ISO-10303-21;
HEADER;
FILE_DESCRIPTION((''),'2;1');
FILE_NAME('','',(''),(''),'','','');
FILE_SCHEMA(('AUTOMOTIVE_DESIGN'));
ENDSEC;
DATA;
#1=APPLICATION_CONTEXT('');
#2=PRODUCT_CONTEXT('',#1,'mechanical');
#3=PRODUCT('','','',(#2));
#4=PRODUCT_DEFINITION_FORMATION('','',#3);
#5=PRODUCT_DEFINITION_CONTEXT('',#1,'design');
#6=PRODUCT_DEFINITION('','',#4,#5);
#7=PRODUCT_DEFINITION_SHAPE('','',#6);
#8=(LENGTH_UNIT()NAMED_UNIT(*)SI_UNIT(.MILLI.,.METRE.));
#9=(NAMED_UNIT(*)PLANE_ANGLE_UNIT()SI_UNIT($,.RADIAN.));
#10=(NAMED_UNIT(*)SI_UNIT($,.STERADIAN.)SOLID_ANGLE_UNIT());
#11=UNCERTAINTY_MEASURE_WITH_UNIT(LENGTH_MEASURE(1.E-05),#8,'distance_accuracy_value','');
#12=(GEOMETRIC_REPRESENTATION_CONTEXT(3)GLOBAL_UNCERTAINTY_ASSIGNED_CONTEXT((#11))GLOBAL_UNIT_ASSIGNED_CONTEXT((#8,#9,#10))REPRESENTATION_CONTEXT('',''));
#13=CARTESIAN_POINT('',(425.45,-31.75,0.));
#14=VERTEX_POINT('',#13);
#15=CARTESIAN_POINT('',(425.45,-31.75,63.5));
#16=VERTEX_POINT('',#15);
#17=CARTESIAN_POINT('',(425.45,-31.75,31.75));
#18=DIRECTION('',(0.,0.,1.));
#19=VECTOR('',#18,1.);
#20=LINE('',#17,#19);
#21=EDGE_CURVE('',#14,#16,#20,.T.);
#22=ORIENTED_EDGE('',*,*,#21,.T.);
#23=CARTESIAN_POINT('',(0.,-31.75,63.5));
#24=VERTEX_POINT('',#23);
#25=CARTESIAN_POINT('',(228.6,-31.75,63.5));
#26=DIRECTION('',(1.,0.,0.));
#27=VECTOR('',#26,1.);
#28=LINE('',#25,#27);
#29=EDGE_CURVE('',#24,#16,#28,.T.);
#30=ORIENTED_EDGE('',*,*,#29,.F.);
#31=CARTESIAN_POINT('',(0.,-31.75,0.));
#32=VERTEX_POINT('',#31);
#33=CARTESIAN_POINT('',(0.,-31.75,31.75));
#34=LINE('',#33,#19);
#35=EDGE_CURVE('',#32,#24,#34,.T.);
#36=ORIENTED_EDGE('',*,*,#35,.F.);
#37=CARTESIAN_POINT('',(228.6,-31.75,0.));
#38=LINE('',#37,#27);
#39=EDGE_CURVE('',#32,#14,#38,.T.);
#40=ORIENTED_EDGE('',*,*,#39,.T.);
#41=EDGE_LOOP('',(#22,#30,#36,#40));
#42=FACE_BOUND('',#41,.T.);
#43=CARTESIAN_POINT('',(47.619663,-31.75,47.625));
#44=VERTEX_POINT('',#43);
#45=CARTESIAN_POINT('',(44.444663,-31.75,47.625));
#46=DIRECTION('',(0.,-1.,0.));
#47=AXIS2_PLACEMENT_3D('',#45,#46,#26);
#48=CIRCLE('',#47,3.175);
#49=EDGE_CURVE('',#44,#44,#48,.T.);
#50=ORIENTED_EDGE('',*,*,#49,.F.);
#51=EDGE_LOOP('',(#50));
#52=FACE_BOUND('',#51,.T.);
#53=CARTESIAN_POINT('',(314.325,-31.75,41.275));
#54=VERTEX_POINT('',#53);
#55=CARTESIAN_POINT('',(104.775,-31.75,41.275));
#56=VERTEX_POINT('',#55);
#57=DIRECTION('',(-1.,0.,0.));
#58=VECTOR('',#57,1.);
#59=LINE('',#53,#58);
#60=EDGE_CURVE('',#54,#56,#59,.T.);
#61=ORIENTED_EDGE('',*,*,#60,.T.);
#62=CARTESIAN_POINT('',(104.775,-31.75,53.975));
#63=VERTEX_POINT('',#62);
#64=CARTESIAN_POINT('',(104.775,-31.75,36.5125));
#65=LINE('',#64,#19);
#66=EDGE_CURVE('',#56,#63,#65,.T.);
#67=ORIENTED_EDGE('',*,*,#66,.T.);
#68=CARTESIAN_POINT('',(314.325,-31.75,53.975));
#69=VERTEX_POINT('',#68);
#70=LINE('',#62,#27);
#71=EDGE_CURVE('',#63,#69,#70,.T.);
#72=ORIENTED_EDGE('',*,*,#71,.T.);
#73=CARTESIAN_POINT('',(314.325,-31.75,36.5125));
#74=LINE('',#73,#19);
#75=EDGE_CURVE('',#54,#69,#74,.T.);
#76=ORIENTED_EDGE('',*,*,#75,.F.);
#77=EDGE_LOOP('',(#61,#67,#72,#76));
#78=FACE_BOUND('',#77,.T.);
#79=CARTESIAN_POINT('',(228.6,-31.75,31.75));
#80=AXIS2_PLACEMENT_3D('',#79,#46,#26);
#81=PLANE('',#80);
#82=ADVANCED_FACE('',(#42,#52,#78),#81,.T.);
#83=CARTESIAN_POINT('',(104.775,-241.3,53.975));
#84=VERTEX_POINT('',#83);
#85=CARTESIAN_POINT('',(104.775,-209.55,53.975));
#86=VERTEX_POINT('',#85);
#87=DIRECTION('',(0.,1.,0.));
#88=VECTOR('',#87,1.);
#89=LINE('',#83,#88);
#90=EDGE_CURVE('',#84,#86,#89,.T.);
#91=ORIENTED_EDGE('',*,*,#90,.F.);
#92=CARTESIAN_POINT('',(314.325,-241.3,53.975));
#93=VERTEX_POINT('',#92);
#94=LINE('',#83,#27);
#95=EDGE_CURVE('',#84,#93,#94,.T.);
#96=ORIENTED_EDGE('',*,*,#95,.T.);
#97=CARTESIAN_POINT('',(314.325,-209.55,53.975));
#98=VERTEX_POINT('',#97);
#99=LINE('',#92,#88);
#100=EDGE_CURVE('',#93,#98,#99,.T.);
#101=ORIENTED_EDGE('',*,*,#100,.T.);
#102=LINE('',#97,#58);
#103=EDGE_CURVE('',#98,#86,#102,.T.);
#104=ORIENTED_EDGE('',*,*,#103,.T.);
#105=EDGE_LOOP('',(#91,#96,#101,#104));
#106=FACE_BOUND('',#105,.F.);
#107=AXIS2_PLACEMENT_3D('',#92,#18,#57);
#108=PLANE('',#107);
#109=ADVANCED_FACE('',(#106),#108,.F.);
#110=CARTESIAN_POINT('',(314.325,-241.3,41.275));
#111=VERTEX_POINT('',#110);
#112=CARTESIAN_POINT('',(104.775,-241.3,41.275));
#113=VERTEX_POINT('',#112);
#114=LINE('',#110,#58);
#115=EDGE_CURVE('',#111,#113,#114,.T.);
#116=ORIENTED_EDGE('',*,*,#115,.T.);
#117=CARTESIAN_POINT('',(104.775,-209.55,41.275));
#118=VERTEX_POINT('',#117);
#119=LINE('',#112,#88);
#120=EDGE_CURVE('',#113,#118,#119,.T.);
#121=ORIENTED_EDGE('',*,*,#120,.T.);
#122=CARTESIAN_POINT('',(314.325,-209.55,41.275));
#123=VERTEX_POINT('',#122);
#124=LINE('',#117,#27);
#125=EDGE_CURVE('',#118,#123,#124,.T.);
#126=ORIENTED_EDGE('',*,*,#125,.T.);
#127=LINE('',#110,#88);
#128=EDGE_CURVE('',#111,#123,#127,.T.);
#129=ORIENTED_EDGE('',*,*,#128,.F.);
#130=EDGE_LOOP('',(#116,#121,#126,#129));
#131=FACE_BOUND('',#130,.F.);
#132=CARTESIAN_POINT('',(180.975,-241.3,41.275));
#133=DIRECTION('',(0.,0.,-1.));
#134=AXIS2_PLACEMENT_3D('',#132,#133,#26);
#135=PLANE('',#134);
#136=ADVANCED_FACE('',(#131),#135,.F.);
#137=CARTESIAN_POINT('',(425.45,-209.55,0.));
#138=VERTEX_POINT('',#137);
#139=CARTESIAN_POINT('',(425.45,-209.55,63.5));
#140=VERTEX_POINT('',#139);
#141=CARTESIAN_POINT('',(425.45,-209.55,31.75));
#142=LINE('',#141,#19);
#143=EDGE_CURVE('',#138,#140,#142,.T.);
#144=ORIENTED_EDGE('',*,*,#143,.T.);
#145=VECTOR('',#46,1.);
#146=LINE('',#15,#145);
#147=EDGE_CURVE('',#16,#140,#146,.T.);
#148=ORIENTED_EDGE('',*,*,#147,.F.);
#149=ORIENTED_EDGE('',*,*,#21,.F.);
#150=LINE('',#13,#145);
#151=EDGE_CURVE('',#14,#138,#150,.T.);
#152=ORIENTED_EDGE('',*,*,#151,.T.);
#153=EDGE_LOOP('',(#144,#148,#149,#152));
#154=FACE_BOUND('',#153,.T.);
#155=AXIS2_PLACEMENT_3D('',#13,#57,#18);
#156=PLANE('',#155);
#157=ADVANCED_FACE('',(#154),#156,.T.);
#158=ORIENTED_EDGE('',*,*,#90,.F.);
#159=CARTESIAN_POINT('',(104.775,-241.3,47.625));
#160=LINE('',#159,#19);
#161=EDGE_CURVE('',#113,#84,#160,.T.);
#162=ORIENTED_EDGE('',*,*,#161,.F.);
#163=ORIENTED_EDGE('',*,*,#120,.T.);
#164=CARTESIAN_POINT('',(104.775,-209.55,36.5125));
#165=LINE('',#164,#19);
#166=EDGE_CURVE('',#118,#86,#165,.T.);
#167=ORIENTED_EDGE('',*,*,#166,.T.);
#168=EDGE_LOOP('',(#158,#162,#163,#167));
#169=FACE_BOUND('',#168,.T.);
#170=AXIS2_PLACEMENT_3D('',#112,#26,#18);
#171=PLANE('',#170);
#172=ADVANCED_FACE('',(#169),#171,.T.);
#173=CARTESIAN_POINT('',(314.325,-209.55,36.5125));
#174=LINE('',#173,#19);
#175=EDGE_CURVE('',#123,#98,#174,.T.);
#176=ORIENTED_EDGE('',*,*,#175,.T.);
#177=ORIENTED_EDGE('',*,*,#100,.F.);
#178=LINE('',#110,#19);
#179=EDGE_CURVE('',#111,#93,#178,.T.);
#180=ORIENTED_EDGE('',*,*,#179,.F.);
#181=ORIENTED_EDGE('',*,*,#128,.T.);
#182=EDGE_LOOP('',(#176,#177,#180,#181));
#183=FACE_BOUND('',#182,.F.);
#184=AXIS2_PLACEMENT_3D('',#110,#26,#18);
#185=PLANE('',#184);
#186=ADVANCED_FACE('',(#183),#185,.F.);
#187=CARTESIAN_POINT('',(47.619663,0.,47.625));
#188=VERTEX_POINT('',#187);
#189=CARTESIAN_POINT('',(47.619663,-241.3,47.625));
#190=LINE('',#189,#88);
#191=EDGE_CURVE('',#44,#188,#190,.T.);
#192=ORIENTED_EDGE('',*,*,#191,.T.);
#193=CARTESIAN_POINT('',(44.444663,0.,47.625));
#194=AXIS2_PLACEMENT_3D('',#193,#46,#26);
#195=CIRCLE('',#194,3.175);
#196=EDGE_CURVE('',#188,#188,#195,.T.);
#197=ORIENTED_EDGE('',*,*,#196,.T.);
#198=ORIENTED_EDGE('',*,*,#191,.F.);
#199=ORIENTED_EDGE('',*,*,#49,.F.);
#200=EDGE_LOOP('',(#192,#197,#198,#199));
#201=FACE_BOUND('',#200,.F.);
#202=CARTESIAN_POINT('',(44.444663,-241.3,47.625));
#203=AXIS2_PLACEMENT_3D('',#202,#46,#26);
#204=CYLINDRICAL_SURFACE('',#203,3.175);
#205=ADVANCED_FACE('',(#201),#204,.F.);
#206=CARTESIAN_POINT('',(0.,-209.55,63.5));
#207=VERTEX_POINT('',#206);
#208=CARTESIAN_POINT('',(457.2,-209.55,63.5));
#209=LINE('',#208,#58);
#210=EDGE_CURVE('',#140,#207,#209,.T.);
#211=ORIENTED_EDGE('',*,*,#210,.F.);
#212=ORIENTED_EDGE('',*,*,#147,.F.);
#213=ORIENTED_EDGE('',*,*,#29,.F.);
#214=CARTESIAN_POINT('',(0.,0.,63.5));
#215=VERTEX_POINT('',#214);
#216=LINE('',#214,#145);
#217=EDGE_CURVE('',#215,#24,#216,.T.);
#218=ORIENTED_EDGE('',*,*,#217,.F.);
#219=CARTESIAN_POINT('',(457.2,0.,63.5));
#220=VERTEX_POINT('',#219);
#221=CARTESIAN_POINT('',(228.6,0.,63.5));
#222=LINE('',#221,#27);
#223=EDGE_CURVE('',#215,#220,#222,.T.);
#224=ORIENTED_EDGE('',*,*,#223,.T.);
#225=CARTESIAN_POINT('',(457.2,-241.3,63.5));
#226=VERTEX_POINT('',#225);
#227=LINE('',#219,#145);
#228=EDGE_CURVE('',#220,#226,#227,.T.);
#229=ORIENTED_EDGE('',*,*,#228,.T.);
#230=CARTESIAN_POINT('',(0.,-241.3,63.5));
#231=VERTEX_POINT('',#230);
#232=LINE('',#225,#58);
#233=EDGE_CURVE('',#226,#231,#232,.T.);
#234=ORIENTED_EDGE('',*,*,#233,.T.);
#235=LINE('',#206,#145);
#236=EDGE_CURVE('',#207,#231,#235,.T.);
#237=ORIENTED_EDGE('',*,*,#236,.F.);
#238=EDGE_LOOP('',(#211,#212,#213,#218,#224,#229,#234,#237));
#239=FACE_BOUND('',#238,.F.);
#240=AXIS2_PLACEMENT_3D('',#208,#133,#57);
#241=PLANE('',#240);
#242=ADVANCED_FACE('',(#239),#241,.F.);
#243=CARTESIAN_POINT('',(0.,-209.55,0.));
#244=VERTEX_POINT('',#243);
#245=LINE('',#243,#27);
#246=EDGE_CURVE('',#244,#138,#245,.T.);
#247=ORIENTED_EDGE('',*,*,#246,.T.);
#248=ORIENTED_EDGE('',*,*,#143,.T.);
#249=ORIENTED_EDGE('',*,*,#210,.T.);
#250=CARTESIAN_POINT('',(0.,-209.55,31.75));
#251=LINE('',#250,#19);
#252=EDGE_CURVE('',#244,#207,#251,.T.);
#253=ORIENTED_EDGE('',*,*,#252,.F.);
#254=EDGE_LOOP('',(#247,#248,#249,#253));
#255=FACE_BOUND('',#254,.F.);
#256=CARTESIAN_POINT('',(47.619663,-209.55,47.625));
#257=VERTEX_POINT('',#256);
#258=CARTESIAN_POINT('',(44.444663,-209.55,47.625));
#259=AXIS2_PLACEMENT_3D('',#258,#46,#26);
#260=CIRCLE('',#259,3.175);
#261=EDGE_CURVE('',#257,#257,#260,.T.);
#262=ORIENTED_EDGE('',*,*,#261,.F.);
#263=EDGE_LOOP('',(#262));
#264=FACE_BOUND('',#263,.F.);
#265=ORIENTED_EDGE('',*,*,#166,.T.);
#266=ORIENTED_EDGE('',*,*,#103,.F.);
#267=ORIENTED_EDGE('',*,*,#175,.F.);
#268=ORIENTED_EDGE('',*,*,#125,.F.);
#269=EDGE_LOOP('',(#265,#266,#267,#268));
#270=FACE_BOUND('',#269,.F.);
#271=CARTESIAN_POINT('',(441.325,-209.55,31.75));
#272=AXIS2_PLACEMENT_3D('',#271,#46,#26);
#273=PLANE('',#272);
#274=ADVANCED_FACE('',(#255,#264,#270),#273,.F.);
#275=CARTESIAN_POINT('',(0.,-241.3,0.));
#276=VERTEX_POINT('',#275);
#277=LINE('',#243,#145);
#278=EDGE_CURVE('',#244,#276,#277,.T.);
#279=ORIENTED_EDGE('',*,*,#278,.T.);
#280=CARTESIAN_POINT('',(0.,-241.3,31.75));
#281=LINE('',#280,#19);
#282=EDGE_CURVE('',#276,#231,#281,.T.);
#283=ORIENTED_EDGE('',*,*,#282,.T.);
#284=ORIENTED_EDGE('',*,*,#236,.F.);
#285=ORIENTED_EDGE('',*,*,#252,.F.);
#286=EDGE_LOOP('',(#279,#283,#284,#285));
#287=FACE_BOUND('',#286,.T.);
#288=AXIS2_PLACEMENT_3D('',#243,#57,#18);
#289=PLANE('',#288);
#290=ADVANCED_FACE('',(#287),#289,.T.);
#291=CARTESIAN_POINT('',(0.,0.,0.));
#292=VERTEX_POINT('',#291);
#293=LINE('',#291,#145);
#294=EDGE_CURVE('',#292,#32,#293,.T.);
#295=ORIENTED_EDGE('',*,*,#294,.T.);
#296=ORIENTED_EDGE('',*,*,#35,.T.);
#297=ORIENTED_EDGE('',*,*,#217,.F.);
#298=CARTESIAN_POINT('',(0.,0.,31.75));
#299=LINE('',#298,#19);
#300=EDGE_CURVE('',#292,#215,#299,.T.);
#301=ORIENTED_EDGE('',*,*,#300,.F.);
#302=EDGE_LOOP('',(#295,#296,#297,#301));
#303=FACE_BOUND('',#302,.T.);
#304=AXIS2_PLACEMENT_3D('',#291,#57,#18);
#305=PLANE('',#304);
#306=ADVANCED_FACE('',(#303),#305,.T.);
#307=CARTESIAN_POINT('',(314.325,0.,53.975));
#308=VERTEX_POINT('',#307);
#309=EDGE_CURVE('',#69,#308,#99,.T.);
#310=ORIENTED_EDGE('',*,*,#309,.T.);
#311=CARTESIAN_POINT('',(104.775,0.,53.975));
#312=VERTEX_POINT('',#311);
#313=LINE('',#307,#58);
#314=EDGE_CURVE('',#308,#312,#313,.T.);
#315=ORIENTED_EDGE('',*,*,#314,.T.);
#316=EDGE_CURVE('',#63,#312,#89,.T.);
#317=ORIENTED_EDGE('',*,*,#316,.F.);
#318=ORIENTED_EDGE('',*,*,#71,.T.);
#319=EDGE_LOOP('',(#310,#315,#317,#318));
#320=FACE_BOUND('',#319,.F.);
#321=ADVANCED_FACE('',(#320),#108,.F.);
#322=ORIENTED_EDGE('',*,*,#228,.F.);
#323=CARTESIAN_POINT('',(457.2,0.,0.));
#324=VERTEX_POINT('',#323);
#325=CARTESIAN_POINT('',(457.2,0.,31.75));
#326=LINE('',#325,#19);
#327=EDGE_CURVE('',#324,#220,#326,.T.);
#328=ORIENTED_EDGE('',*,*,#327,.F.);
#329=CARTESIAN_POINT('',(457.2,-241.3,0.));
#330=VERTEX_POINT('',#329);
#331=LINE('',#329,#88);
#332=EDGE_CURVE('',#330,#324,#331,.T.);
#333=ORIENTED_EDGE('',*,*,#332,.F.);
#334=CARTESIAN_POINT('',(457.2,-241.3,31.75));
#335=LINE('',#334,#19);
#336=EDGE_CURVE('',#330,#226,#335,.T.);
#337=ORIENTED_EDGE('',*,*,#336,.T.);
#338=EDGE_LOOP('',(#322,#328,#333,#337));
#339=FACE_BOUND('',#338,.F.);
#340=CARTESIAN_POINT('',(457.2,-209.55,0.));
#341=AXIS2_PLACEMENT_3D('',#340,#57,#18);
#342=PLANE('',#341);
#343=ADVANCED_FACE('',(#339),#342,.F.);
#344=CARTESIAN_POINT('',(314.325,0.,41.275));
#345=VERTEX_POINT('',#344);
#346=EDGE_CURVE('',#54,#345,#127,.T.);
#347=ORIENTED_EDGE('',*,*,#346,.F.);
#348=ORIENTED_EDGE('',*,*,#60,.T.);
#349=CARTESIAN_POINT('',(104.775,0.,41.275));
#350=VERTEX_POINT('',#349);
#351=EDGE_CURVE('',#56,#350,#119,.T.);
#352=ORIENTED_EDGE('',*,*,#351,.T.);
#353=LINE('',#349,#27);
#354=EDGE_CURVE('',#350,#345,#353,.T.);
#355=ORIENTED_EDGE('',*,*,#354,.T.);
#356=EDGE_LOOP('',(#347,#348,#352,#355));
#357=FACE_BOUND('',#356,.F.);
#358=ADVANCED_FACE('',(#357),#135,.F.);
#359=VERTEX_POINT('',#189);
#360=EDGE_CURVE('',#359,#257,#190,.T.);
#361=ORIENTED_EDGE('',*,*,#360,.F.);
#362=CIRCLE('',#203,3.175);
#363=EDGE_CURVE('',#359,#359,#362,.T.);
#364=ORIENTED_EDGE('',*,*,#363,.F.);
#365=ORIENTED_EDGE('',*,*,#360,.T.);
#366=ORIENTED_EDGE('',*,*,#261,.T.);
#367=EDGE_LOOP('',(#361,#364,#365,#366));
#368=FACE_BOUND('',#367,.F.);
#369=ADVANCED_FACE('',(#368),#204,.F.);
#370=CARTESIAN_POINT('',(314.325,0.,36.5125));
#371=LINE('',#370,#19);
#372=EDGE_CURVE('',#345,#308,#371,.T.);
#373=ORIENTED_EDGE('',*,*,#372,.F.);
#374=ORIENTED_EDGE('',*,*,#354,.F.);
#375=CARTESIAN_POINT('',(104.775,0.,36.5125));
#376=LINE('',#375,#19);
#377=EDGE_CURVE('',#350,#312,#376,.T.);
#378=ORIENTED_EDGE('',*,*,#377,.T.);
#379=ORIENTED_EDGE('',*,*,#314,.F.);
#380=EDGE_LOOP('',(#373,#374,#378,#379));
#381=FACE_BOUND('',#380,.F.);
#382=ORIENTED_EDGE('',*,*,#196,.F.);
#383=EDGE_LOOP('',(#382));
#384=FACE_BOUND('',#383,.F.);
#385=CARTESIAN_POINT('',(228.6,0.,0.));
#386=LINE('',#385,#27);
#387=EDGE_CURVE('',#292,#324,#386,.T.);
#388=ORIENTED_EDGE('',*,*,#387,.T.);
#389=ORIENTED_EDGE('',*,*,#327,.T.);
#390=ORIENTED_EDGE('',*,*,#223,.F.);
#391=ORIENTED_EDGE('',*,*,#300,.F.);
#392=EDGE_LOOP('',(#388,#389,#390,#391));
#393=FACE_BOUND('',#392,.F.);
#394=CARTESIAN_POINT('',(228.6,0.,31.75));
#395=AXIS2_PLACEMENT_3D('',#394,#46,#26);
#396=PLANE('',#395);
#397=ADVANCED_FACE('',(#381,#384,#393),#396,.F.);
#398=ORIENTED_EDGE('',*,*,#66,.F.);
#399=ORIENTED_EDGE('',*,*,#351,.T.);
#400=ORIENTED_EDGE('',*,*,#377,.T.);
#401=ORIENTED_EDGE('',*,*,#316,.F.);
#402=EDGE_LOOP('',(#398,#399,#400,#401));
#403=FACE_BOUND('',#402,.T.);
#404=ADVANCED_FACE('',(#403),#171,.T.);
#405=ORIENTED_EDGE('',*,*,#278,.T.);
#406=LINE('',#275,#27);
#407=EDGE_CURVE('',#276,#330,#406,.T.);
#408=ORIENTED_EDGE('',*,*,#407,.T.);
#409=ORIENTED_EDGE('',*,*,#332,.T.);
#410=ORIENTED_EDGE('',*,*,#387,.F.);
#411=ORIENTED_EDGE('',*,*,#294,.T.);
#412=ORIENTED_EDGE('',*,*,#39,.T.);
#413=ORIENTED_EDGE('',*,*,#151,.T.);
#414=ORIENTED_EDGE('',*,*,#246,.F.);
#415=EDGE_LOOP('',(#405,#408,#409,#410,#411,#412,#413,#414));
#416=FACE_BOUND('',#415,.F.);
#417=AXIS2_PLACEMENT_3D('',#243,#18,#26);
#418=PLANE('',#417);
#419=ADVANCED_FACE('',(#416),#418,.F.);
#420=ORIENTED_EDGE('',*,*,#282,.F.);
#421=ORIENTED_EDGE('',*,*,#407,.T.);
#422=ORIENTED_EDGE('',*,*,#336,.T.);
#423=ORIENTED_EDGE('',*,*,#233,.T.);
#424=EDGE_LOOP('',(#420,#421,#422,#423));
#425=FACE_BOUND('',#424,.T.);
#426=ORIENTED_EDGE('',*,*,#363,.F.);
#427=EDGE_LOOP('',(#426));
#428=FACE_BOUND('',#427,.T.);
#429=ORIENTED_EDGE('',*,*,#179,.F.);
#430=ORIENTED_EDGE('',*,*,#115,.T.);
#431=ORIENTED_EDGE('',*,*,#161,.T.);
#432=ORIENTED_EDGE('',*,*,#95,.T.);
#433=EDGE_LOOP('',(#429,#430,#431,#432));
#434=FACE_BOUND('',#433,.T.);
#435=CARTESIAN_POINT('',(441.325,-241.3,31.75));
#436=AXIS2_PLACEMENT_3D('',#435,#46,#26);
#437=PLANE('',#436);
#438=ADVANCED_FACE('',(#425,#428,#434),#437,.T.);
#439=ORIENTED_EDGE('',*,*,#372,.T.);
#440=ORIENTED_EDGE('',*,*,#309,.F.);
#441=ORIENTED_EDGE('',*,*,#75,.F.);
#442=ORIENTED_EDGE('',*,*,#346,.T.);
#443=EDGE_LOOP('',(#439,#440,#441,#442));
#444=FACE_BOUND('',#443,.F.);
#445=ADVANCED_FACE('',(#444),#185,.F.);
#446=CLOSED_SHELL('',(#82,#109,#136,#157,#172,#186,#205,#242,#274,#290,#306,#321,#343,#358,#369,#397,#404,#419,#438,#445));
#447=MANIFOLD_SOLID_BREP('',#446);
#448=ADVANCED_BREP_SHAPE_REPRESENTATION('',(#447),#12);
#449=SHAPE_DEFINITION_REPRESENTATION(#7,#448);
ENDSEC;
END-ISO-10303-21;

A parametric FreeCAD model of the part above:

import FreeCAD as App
import Part
import Sketcher

V = App.Vector
Q = App.Units.Quantity


def add_polygon(sketch, points):
    """Adds a closed chain of lines whose ends are joined by coincident constraints."""
    first, n = sketch.GeometryCount, len(points)
    for a, b in zip(points, points[1:] + points[:1]):
        sketch.addGeometry(Part.LineSegment(App.Vector(*a, 0), App.Vector(*b, 0)), False)
    for i in range(n):
        sketch.addConstraint(Sketcher.Constraint("Coincident", first + i, 2, first + (i + 1) % n, 1))

doc = App.newDocument("Part")
body = doc.addObject("PartDesign::Body", "Body")

# Sketch on XZ plane
sketch1 = body.newObject("Sketcher::SketchObject", "Sketch")
sketch1.AttachmentSupport = (doc.getObject("XZ_Plane"), [""])
sketch1.MapMode = "FlatFace"
add_polygon(sketch1, [(0, 63.5), (0, 0), (457.2, 0), (457.2, 63.5)])  # lines 0-3
sketch1.addConstraint(Sketcher.Constraint("Vertical", 0))
sketch1.addConstraint(Sketcher.Constraint("Horizontal", 1))
sketch1.addConstraint(Sketcher.Constraint("Vertical", 2))
sketch1.addConstraint(Sketcher.Constraint("Horizontal", 3))
sketch1.addConstraint(Sketcher.Constraint("Coincident", 0, 2, -1, 1))
sketch1.addConstraint(Sketcher.Constraint("DistanceX", 1, 1, 1, 2, Q("18 in")))
sketch1.addConstraint(Sketcher.Constraint("DistanceY", 0, 2, 0, 1, Q("2.5 in")))
pad1 = body.newObject("PartDesign::Pad", "Pad")
pad1.Profile = sketch1
pad1.Length = Q("1.25 in")

# Sketch on XZ plane
sketch2 = body.newObject("Sketcher::SketchObject", "Sketch001")
sketch2.AttachmentSupport = (doc.getObject("XZ_Plane"), [""])
sketch2.MapMode = "FlatFace"
sketch2.AttachmentOffset = App.Placement(V(0, 0, 1.25 * 25.4), App.Rotation())
add_polygon(sketch2, [(425.45, 63.5), (425.45, 0), (457.2, 0), (457.2, 63.5)])  # lines 0-3
sketch2.addConstraint(Sketcher.Constraint("Vertical", 0))
sketch2.addConstraint(Sketcher.Constraint("Horizontal", 1))
sketch2.addConstraint(Sketcher.Constraint("Vertical", 2))
sketch2.addConstraint(Sketcher.Constraint("Horizontal", 3))
sketch2.addConstraint(Sketcher.Constraint("PointOnObject", 0, 2, -1))
sketch2.addConstraint(Sketcher.Constraint("DistanceY", 0, 2, 0, 1, Q("2.5 in")))
sketch2.addConstraint(Sketcher.Constraint("DistanceX", -1, 1, 1, 2, Q("18 in")))
sketch2.addConstraint(Sketcher.Constraint("DistanceX", 1, 1, 1, 2, Q("1.25 in")))
pad2 = body.newObject("PartDesign::Pad", "Pad001")
pad2.Profile = sketch2
pad2.Length = Q("7 in")

# Sketch on XZ plane
sketch3 = body.newObject("Sketcher::SketchObject", "Sketch002")
sketch3.AttachmentSupport = (doc.getObject("XZ_Plane"), [""])
sketch3.MapMode = "FlatFace"
sketch3.AttachmentOffset = App.Placement(V(0, 0, 8.25 * 25.4), App.Rotation())
add_polygon(sketch3, [(457.2, 0), (457.2, 63.5), (0, 63.5), (0, 0)])  # lines 0-3
sketch3.addConstraint(Sketcher.Constraint("Vertical", 0))
sketch3.addConstraint(Sketcher.Constraint("Horizontal", 1))
sketch3.addConstraint(Sketcher.Constraint("Vertical", 2))
sketch3.addConstraint(Sketcher.Constraint("Horizontal", 3))
sketch3.addConstraint(Sketcher.Constraint("Coincident", 2, 2, -1, 1))
sketch3.addConstraint(Sketcher.Constraint("DistanceX", 1, 2, 1, 1, Q("18 in")))
sketch3.addConstraint(Sketcher.Constraint("DistanceY", 0, 1, 0, 2, Q("2.5 in")))
pad3 = body.newObject("PartDesign::Pad", "Pad002")
pad3.Profile = sketch3
pad3.Length = Q("1.25 in")

# Sketch on XZ plane
sketch4 = body.newObject("Sketcher::SketchObject", "Sketch003")
sketch4.AttachmentSupport = (doc.getObject("XZ_Plane"), [""])
sketch4.MapMode = "FlatFace"
sketch4.AttachmentOffset = App.Placement(V(0, 0, 9.5 * 25.4), App.Rotation())
add_polygon(sketch4, [(180.975, 41.275), (314.325, 41.275), (314.325, 53.975), (180.975, 53.975)])  # lines 0-3
sketch4.addConstraint(Sketcher.Constraint("Horizontal", 0))
sketch4.addConstraint(Sketcher.Constraint("Vertical", 1))
sketch4.addConstraint(Sketcher.Constraint("Horizontal", 2))
sketch4.addConstraint(Sketcher.Constraint("Vertical", 3))
sketch4.addConstraint(Sketcher.Constraint("DistanceY", 1, 1, 1, 2, Q("0.5 in")))
sketch4.addConstraint(Sketcher.Constraint("DistanceX", 0, 1, 0, 2, Q("5.25 in")))
sketch4.addConstraint(Sketcher.Constraint("DistanceX", -1, 1, 0, 2, Q("12.375 in")))
sketch4.addConstraint(Sketcher.Constraint("DistanceY", -1, 1, 0, 2, Q("1.625 in")))
pocket1 = body.newObject("PartDesign::Pocket", "Pocket")
pocket1.Profile = sketch4
pocket1.Length = Q("10 in")

# Sketch on XZ plane
sketch5 = body.newObject("Sketcher::SketchObject", "Sketch004")
sketch5.AttachmentSupport = (doc.getObject("XZ_Plane"), [""])
sketch5.MapMode = "FlatFace"
sketch5.AttachmentOffset = App.Placement(V(0, 0, 9.5 * 25.4), App.Rotation())
sketch5.addGeometry(Part.Circle(V(44.444663, 47.625, 0), V(0, 0, 1), 3.175), False)
sketch5.addConstraint(Sketcher.Constraint("Diameter", 0, Q("0.25 in")))
sketch5.addConstraint(Sketcher.Constraint("DistanceY", -1, 1, 0, 3, Q("1.875 in")))
sketch5.addConstraint(Sketcher.Constraint("DistanceX", -1, 1, 0, 3, 44.444663))
pocket2 = body.newObject("PartDesign::Pocket", "Pocket001")
pocket2.Profile = sketch5
pocket2.Length = Q("20 in")

# Sketch on XZ plane
sketch6 = body.newObject("Sketcher::SketchObject", "Sketch005")
sketch6.AttachmentSupport = (doc.getObject("XZ_Plane"), [""])
sketch6.MapMode = "FlatFace"
sketch6.AttachmentOffset = App.Placement(V(0, 0, 9.5 * 25.4), App.Rotation())
add_polygon(sketch6, [(104.775, 53.975), (104.775, 41.275), (180.975, 41.275), (180.975, 53.975)])  # lines 0-3
sketch6.addConstraint(Sketcher.Constraint("Vertical", 0))
sketch6.addConstraint(Sketcher.Constraint("Horizontal", 1))
sketch6.addConstraint(Sketcher.Constraint("Vertical", 2))
sketch6.addConstraint(Sketcher.Constraint("Horizontal", 3))
sketch6.addConstraint(Sketcher.Constraint("DistanceX", 1, 1, 1, 2, Q("3 in")))
sketch6.addConstraint(Sketcher.Constraint("DistanceY", 0, 2, 0, 1, Q("0.5 in")))
sketch6.addConstraint(Sketcher.Constraint("DistanceX", -1, 1, 0, 2, Q("4.125 in")))
sketch6.addConstraint(Sketcher.Constraint("DistanceY", -1, 1, 0, 2, Q("1.625 in")))
pocket3 = body.newObject("PartDesign::Pocket", "Pocket002")
pocket3.Profile = sketch6
pocket3.Length = Q("13.65 in")

doc.recompute()
